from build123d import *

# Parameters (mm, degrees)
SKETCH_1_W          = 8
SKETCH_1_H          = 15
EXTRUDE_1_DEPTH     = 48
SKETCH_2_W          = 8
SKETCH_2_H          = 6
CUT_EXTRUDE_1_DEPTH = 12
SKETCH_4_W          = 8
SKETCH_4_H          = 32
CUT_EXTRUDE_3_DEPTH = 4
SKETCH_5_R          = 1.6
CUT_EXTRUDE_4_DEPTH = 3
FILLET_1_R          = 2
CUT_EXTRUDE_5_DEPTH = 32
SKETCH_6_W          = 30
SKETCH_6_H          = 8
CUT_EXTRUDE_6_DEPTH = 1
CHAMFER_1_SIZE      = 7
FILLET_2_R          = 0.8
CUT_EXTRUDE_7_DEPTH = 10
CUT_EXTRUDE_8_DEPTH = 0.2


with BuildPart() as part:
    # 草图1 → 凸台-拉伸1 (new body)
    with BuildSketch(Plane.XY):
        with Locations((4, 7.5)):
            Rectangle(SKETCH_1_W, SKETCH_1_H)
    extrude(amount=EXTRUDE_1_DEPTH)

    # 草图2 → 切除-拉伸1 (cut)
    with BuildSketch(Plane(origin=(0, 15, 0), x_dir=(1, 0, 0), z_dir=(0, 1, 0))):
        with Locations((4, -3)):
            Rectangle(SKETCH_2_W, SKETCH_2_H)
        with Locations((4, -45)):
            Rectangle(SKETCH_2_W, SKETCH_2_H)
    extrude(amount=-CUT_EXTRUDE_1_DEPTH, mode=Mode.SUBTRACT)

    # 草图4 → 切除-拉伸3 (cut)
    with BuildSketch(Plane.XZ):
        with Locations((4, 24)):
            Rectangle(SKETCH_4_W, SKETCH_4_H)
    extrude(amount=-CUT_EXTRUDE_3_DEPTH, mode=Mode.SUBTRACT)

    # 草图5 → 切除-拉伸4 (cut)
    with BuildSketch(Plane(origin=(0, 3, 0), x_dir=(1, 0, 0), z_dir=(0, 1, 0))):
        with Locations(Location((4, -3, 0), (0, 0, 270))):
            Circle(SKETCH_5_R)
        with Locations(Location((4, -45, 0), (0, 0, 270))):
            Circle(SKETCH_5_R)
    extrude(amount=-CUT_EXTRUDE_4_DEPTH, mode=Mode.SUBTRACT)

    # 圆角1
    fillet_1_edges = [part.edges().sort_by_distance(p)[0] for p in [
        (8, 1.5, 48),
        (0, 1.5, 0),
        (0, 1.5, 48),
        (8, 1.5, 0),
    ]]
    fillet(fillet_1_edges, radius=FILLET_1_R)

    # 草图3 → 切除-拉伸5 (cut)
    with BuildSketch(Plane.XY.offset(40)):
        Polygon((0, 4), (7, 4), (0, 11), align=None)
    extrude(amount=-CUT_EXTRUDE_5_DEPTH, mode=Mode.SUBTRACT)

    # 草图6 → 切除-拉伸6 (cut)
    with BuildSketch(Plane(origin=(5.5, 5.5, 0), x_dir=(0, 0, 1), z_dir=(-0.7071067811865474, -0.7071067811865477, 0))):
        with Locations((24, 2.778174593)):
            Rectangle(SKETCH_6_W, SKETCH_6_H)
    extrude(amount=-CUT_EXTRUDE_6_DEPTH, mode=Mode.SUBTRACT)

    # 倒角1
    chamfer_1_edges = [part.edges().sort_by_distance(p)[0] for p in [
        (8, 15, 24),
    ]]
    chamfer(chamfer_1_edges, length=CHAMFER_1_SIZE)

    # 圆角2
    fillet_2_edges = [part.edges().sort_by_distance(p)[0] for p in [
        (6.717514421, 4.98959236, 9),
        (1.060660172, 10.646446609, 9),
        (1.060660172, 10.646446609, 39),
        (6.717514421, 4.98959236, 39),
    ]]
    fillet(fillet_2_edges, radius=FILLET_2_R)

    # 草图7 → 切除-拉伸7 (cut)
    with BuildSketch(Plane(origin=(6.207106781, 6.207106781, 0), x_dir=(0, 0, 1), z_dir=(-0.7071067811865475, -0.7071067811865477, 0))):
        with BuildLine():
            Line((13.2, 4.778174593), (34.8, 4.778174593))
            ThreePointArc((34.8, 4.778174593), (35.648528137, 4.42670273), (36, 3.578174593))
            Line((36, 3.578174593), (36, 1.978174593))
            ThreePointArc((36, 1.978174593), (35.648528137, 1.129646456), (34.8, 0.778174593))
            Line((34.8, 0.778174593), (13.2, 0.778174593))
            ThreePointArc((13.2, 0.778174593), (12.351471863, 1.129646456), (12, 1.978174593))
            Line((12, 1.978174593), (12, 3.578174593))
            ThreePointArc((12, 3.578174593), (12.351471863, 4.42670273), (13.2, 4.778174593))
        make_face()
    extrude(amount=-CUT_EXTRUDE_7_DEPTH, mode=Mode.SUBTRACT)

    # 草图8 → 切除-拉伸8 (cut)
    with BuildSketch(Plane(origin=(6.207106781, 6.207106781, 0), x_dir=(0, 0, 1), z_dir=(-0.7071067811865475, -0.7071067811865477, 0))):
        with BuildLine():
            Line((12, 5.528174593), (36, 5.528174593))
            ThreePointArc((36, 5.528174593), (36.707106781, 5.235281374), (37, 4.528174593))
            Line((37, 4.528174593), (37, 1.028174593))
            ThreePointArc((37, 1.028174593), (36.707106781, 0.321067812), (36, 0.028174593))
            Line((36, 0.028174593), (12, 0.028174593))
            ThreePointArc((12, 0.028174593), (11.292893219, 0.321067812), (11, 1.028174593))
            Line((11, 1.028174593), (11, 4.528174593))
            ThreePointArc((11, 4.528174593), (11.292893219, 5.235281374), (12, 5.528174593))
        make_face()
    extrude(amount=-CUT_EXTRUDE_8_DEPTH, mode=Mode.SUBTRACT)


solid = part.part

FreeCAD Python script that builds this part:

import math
import FreeCAD as App
import Part
import Sketcher

V = App.Vector


def edges_at(feature, points):
    """Names of the edges that pass closest to the given points."""
    edges = feature.Shape.Edges
    near = lambda p: min(range(len(edges)), key=lambda i: edges[i].distToShape(Part.Vertex(*p))[0])
    return sorted({f"Edge{near(p) + 1}" for p in points})


def add_polygon(sketch, points):
    """Adds a closed chain of lines whose ends are joined by coincident constraints."""
    first, n = sketch.GeometryCount, len(points)
    for a, b in zip(points, points[1:] + points[:1]):
        sketch.addGeometry(Part.LineSegment(App.Vector(*a, 0), App.Vector(*b, 0)), False)
    for i in range(n):
        sketch.addConstraint(Sketcher.Constraint("Coincident", first + i, 2, first + (i + 1) % n, 1))

doc = App.newDocument("Part")
body = doc.addObject("PartDesign::Body", "Body")

# Sketch on XY plane
sketch1 = doc.addObject("Sketcher::SketchObject", "Sketch")
body.addObject(sketch1)
sketch1.AttachmentSupport = (doc.XY_Plane, [""])
sketch1.MapMode = "FlatFace"
add_polygon(sketch1, [(0, 15), (0, 0), (8, 0), (8, 15)])  # lines 0-3
sketch1.addConstraint(Sketcher.Constraint("Vertical", 0))
sketch1.addConstraint(Sketcher.Constraint("Horizontal", 1))
sketch1.addConstraint(Sketcher.Constraint("Vertical", 2))
sketch1.addConstraint(Sketcher.Constraint("Horizontal", 3))
sketch1.addConstraint(Sketcher.Constraint("Coincident", 0, 2, -1, 1))
sketch1.addConstraint(Sketcher.Constraint("DistanceX", 1, 1, 1, 2, 8.0))
sketch1.addConstraint(Sketcher.Constraint("DistanceY", 0, 2, 0, 1, 15.0))
pad1 = doc.addObject("PartDesign::Pad", "Pad")
body.addObject(pad1)
pad1.Profile = sketch1
pad1.Length = 48

# Sketch on XZ plane
sketch2 = doc.addObject("Sketcher::SketchObject", "Sketch001")
body.addObject(sketch2)
sketch2.AttachmentSupport = (doc.XZ_Plane, [""])
sketch2.MapMode = "FlatFace"
sketch2.AttachmentOffset = App.Placement(V(0, 0, -15), App.Rotation())
add_polygon(sketch2, [(0, 0), (0, 6), (8, 6), (8, 0)])  # lines 0-3
add_polygon(sketch2, [(0, 42), (0, 48), (8, 48), (8, 42)])  # lines 4-7
sketch2.addConstraint(Sketcher.Constraint("Vertical", 0))
sketch2.addConstraint(Sketcher.Constraint("Horizontal", 1))
sketch2.addConstraint(Sketcher.Constraint("Vertical", 2))
sketch2.addConstraint(Sketcher.Constraint("Horizontal", 3))
sketch2.addConstraint(Sketcher.Constraint("Vertical", 4))
sketch2.addConstraint(Sketcher.Constraint("Horizontal", 5))
sketch2.addConstraint(Sketcher.Constraint("Vertical", 6))
sketch2.addConstraint(Sketcher.Constraint("Horizontal", 7))
sketch2.addConstraint(Sketcher.Constraint("Coincident", 3, 2, -1, 1))
sketch2.addConstraint(Sketcher.Constraint("PointOnObject", 4, 2, -2))
sketch2.addConstraint(Sketcher.Constraint("Vertical", 2, 2, 5, 2))
sketch2.addConstraint(Sketcher.Constraint("Equal", 2, 4))
sketch2.addConstraint(Sketcher.Constraint("DistanceX", 1, 1, 1, 2, 8.0))
sketch2.addConstraint(Sketcher.Constraint("DistanceY", 0, 1, 0, 2, 6.0))
sketch2.addConstraint(Sketcher.Constraint("DistanceY", -1, 1, 4, 2, 48.0))
pocket1 = doc.addObject("PartDesign::Pocket", "Pocket")
body.addObject(pocket1)
pocket1.Profile = sketch2
pocket1.Length = 12
pocket1.Reversed = True

# Sketch on XZ plane
sketch3 = doc.addObject("Sketcher::SketchObject", "Sketch002")
body.addObject(sketch3)
sketch3.AttachmentSupport = (doc.XZ_Plane, [""])
sketch3.MapMode = "FlatFace"
add_polygon(sketch3, [(0, 40), (0, 8), (8, 8), (8, 40)])  # lines 0-3
sketch3.addConstraint(Sketcher.Constraint("Vertical", 0))
sketch3.addConstraint(Sketcher.Constraint("Horizontal", 1))
sketch3.addConstraint(Sketcher.Constraint("Vertical", 2))
sketch3.addConstraint(Sketcher.Constraint("Horizontal", 3))
sketch3.addConstraint(Sketcher.Constraint("PointOnObject", 0, 2, -2))
sketch3.addConstraint(Sketcher.Constraint("DistanceX", 1, 1, 1, 2, 8.0))
sketch3.addConstraint(Sketcher.Constraint("DistanceY", 0, 2, 0, 1, 32.0))
sketch3.addConstraint(Sketcher.Constraint("DistanceY", -1, 1, 0, 2, 8.0))
pocket2 = doc.addObject("PartDesign::Pocket", "Pocket001")
body.addObject(pocket2)
pocket2.Profile = sketch3
pocket2.Length = 4

# Sketch on XZ plane
sketch4 = doc.addObject("Sketcher::SketchObject", "Sketch003")
body.addObject(sketch4)
sketch4.AttachmentSupport = (doc.XZ_Plane, [""])
sketch4.MapMode = "FlatFace"
sketch4.AttachmentOffset = App.Placement(V(0, 0, -3), App.Rotation())
sketch4.addGeometry(Part.Circle(V(4, 3, 0), V(0, 0, 1), 1.6), False)
sketch4.addGeometry(Part.Circle(V(4, 45, 0), V(0, 0, 1), 1.6), False)
sketch4.addConstraint(Sketcher.Constraint("Equal", 0, 1))
sketch4.addConstraint(Sketcher.Constraint("Vertical", 0, 3, 1, 3))
sketch4.addConstraint(Sketcher.Constraint("Diameter", 0, 3.2))
sketch4.addConstraint(Sketcher.Constraint("DistanceX", -1, 1, 0, 3, 4.0))
sketch4.addConstraint(Sketcher.Constraint("DistanceY", -1, 1, 0, 3, 3.0))
sketch4.addConstraint(Sketcher.Constraint("DistanceY", -1, 1, 1, 3, 45.0))
pocket3 = doc.addObject("PartDesign::Pocket", "Pocket002")
body.addObject(pocket3)
pocket3.Profile = sketch4
pocket3.Length = 3
pocket3.Reversed = True
doc.recompute()

fillet = doc.addObject("PartDesign::Fillet", "Fillet")
body.addObject(fillet)
fillet.Base = (pocket3, edges_at(pocket3, [
    (8, 1.5, 48),
    (0, 1.5, 0),
    (0, 1.5, 48),
    (8, 1.5, 0),
]))
fillet.Radius = 2

# Sketch on XY plane
sketch5 = doc.addObject("Sketcher::SketchObject", "Sketch004")
body.addObject(sketch5)
sketch5.AttachmentSupport = (doc.XY_Plane, [""])
sketch5.MapMode = "FlatFace"
sketch5.AttachmentOffset = App.Placement(V(0, 0, 40), App.Rotation())
add_polygon(sketch5, [(0, 4), (7, 4), (0, 11)])  # lines 0-2
sketch5.addConstraint(Sketcher.Constraint("Horizontal", 0))
sketch5.addConstraint(Sketcher.Constraint("Vertical", 2))
sketch5.addConstraint(Sketcher.Constraint("PointOnObject", 1, 2, -2))
sketch5.addConstraint(Sketcher.Constraint("Equal", 0, 2))
sketch5.addConstraint(Sketcher.Constraint("DistanceX", 0, 1, 0, 2, 7.0))
sketch5.addConstraint(Sketcher.Constraint("DistanceY", -1, 1, 0, 2, 4.0))
pocket4 = doc.addObject("PartDesign::Pocket", "Pocket003")
body.addObject(pocket4)
pocket4.Profile = sketch5
pocket4.Length = 32

# Sketch on an angled plane
sketch6 = doc.addObject("Sketcher::SketchObject", "Sketch005")
body.addObject(sketch6)
sketch6.Placement = App.Placement(V(5.5, 5.5, 0), App.Rotation(V(0, 0, 1), V(-0.707106781, 0.707106781, 0), V(-0.707106781, -0.707106781, 0), "ZXY"))
add_polygon(sketch6, [(9, 7), (9, -1), (39, -1), (39, 7)])  # lines 0-3
sketch6.addConstraint(Sketcher.Constraint("Vertical", 0))
sketch6.addConstraint(Sketcher.Constraint("Horizontal", 1))
sketch6.addConstraint(Sketcher.Constraint("Vertical", 2))
sketch6.addConstraint(Sketcher.Constraint("Horizontal", 3))
sketch6.addConstraint(Sketcher.Constraint("DistanceX", 1, 1, 1, 2, 30.0))
sketch6.addConstraint(Sketcher.Constraint("DistanceY", 0, 2, 0, 1, 8.0))
sketch6.addConstraint(Sketcher.Constraint("DistanceX", -1, 1, 0, 2, 9.0))
sketch6.addConstraint(Sketcher.Constraint("DistanceY", 0, 2, -1, 1, 1.221825))
pocket5 = doc.addObject("PartDesign::Pocket", "Pocket004")
body.addObject(pocket5)
pocket5.Profile = sketch6
pocket5.Length = 1
doc.recompute()

chamfer = doc.addObject("PartDesign::Chamfer", "Chamfer")
body.addObject(chamfer)
chamfer.Base = (pocket5, edges_at(pocket5, [(8, 15, 24)]))
chamfer.Size = 7
doc.recompute()

fillet2 = doc.addObject("PartDesign::Fillet", "Fillet001")
body.addObject(fillet2)
fillet2.Base = (chamfer, edges_at(chamfer, [
    (6.718, 4.99, 9),
    (1.061, 10.646, 9),
    (1.061, 10.646, 39),
    (6.718, 4.99, 39),
]))
fillet2.Radius = 0.8

# Sketch on an angled plane
sketch7 = doc.addObject("Sketcher::SketchObject", "Sketch006")
body.addObject(sketch7)
sketch7.Placement = App.Placement(V(6.207107, 6.207107, 0), App.Rotation(V(0, 0, 1), V(-0.707106781, 0.707106781, 0), V(-0.707106781, -0.707106781, 0), "ZXY"))
sketch7.addGeometry(Part.LineSegment(V(34.8, 4.8, 0), V(13.2, 4.8, 0)), False)
sketch7.addGeometry(Part.ArcOfCircle(Part.Circle(V(13.2, 3.6, 0), V(0, 0, 1), 1.2), math.radians(90), math.radians(180)), False)
sketch7.addGeometry(Part.LineSegment(V(12, 3.6, 0), V(12, 2, 0)), False)
sketch7.addGeometry(Part.ArcOfCircle(Part.Circle(V(13.2, 2, 0), V(0, 0, 1), 1.2), math.radians(-180), math.radians(-90)), False)
sketch7.addGeometry(Part.LineSegment(V(13.2, 0.8, 0), V(34.8, 0.8, 0)), False)
sketch7.addGeometry(Part.ArcOfCircle(Part.Circle(V(34.8, 2, 0), V(0, 0, 1), 1.2), math.radians(-90), math.radians(0)), False)
sketch7.addGeometry(Part.LineSegment(V(36, 2, 0), V(36, 3.6, 0)), False)
sketch7.addGeometry(Part.ArcOfCircle(Part.Circle(V(34.8, 3.6, 0), V(0, 0, 1), 1.2), math.radians(0), math.radians(90)), False)
sketch7.addConstraint(Sketcher.Constraint("Tangent", 0, 2, 1, 1))
sketch7.addConstraint(Sketcher.Constraint("Tangent", 1, 2, 2, 1))
sketch7.addConstraint(Sketcher.Constraint("Tangent", 2, 2, 3, 1))
sketch7.addConstraint(Sketcher.Constraint("Tangent", 3, 2, 4, 1))
sketch7.addConstraint(Sketcher.Constraint("Tangent", 4, 2, 5, 1))
sketch7.addConstraint(Sketcher.Constraint("Tangent", 5, 2, 6, 1))
sketch7.addConstraint(Sketcher.Constraint("Tangent", 6, 2, 7, 1))
sketch7.addConstraint(Sketcher.Constraint("Tangent", 7, 2, 0, 1))
sketch7.addConstraint(Sketcher.Constraint("Horizontal", 0))
sketch7.addConstraint(Sketcher.Constraint("Vertical", 2))
sketch7.addConstraint(Sketcher.Constraint("Horizontal", 4))
sketch7.addConstraint(Sketcher.Constraint("Vertical", 6))
sketch7.addConstraint(Sketcher.Constraint("Equal", 1, 3))
sketch7.addConstraint(Sketcher.Constraint("Equal", 3, 5))
sketch7.addConstraint(Sketcher.Constraint("Equal", 5, 7))
sketch7.addConstraint(Sketcher.Constraint("Radius", 1, 1.2))
sketch7.addConstraint(Sketcher.Constraint("DistanceX", 0, 2, 0, 1, 21.6))
sketch7.addConstraint(Sketcher.Constraint("DistanceY", 2, 2, 2, 1, 1.6))
sketch7.addConstraint(Sketcher.Constraint("DistanceX", -1, 1, 1, 2, 12.0))
sketch7.addConstraint(Sketcher.Constraint("DistanceY", -1, 1, 1, 3, 3.578175))
pocket6 = doc.addObject("PartDesign::Pocket", "Pocket005")
body.addObject(pocket6)
pocket6.Profile = sketch7
pocket6.Length = 10

# Sketch on an angled plane
sketch8 = doc.addObject("Sketcher::SketchObject", "Sketch007")
body.addObject(sketch8)
sketch8.Placement = App.Placement(V(6.207107, 6.207107, 0), App.Rotation(V(0, 0, 1), V(-0.707106781, 0.707106781, 0), V(-0.707106781, -0.707106781, 0), "ZXY"))
sketch8.addGeometry(Part.LineSegment(V(36, 5.5, 0), V(12, 5.5, 0)), False)
sketch8.addGeometry(Part.ArcOfCircle(Part.Circle(V(12, 4.5, 0), V(0, 0, 1), 1), math.radians(90), math.radians(180)), False)
sketch8.addGeometry(Part.LineSegment(V(11, 4.5, 0), V(11, 1, 0)), False)
sketch8.addGeometry(Part.ArcOfCircle(Part.Circle(V(12, 1, 0), V(0, 0, 1), 1), math.radians(-180), math.radians(-90)), False)
sketch8.addGeometry(Part.LineSegment(V(12, 0, 0), V(36, 0, 0)), False)
sketch8.addGeometry(Part.ArcOfCircle(Part.Circle(V(36, 1, 0), V(0, 0, 1), 1), math.radians(-90), math.radians(0)), False)
sketch8.addGeometry(Part.LineSegment(V(37, 1, 0), V(37, 4.5, 0)), False)
sketch8.addGeometry(Part.ArcOfCircle(Part.Circle(V(36, 4.5, 0), V(0, 0, 1), 1), math.radians(0), math.radians(90)), False)
sketch8.addConstraint(Sketcher.Constraint("Tangent", 0, 2, 1, 1))
sketch8.addConstraint(Sketcher.Constraint("Tangent", 1, 2, 2, 1))
sketch8.addConstraint(Sketcher.Constraint("Tangent", 2, 2, 3, 1))
sketch8.addConstraint(Sketcher.Constraint("Tangent", 3, 2, 4, 1))
sketch8.addConstraint(Sketcher.Constraint("Tangent", 4, 2, 5, 1))
sketch8.addConstraint(Sketcher.Constraint("Tangent", 5, 2, 6, 1))
sketch8.addConstraint(Sketcher.Constraint("Tangent", 6, 2, 7, 1))
sketch8.addConstraint(Sketcher.Constraint("Tangent", 7, 2, 0, 1))
sketch8.addConstraint(Sketcher.Constraint("Horizontal", 0))
sketch8.addConstraint(Sketcher.Constraint("Vertical", 2))
sketch8.addConstraint(Sketcher.Constraint("Horizontal", 4))
sketch8.addConstraint(Sketcher.Constraint("Vertical", 6))
sketch8.addConstraint(Sketcher.Constraint("Equal", 1, 3))
sketch8.addConstraint(Sketcher.Constraint("Equal", 3, 5))
sketch8.addConstraint(Sketcher.Constraint("Equal", 5, 7))
sketch8.addConstraint(Sketcher.Constraint("Radius", 1, 1.0))
sketch8.addConstraint(Sketcher.Constraint("DistanceX", 0, 2, 0, 1, 24.0))
sketch8.addConstraint(Sketcher.Constraint("DistanceY", 2, 2, 2, 1, 3.5))
sketch8.addConstraint(Sketcher.Constraint("DistanceX", -1, 1, 1, 3, 12.0))
sketch8.addConstraint(Sketcher.Constraint("DistanceY", -1, 1, 1, 3, 4.528175))
pocket7 = doc.addObject("PartDesign::Pocket", "Pocket006")
body.addObject(pocket7)
pocket7.Profile = sketch8
pocket7.Length = 0.2

doc.recompute()
